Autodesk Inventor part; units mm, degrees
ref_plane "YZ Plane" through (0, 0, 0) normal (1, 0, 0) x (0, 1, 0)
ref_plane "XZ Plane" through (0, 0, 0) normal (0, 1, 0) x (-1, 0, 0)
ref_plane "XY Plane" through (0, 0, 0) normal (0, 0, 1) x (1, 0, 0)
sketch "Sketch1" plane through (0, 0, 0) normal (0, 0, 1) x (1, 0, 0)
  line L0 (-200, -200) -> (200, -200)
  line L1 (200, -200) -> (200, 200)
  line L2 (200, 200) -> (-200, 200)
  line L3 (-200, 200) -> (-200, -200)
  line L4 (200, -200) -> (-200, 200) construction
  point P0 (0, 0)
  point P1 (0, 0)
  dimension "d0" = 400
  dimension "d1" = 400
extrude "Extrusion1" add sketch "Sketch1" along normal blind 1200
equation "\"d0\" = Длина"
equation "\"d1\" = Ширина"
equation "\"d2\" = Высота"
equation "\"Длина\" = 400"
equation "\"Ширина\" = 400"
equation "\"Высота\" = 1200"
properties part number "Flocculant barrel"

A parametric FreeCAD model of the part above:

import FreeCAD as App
import Part
import Sketcher
from FreeCAD import Vector
Q = App.Units.Quantity

doc = App.newDocument("Part")
body = doc.addObject("PartDesign::Body", "Body")

sketch1 = body.newObject("Sketcher::SketchObject", "Sketch")
sketch1.AttachmentSupport = (doc.getObject("XY_Plane"), [""])
sketch1.MapMode = "FlatFace"
sketch1.addGeometry([
    Part.LineSegment(Vector(-200, 200, 0), Vector(-200, -200, 0)),
    Part.LineSegment(Vector(-200, -200, 0), Vector(200, -200, 0)),
    Part.LineSegment(Vector(200, -200, 0), Vector(200, 200, 0)),
    Part.LineSegment(Vector(200, 200, 0), Vector(-200, 200, 0)),
], False)
sketch1.addConstraint([
    Sketcher.Constraint("Coincident", 0, 2, 1, 1),
    Sketcher.Constraint("Coincident", 1, 2, 2, 1),
    Sketcher.Constraint("Coincident", 2, 2, 3, 1),
    Sketcher.Constraint("Coincident", 3, 2, 0, 1),
    Sketcher.Constraint("Vertical", 0),
    Sketcher.Constraint("Horizontal", 1),
    Sketcher.Constraint("Vertical", 2),
    Sketcher.Constraint("Horizontal", 3),
    Sketcher.Constraint("Symmetric", 0, 2, 2, 2, -1, 1),
    Sketcher.Constraint("Equal", 3, 0),
    Sketcher.Constraint("DistanceX", 1, 1, 1, 2, Q("400 mm")),
])
pad1 = body.newObject("PartDesign::Pad", "Pad")
pad1.Profile = sketch1
pad1.Length = 1200

doc.recompute()
